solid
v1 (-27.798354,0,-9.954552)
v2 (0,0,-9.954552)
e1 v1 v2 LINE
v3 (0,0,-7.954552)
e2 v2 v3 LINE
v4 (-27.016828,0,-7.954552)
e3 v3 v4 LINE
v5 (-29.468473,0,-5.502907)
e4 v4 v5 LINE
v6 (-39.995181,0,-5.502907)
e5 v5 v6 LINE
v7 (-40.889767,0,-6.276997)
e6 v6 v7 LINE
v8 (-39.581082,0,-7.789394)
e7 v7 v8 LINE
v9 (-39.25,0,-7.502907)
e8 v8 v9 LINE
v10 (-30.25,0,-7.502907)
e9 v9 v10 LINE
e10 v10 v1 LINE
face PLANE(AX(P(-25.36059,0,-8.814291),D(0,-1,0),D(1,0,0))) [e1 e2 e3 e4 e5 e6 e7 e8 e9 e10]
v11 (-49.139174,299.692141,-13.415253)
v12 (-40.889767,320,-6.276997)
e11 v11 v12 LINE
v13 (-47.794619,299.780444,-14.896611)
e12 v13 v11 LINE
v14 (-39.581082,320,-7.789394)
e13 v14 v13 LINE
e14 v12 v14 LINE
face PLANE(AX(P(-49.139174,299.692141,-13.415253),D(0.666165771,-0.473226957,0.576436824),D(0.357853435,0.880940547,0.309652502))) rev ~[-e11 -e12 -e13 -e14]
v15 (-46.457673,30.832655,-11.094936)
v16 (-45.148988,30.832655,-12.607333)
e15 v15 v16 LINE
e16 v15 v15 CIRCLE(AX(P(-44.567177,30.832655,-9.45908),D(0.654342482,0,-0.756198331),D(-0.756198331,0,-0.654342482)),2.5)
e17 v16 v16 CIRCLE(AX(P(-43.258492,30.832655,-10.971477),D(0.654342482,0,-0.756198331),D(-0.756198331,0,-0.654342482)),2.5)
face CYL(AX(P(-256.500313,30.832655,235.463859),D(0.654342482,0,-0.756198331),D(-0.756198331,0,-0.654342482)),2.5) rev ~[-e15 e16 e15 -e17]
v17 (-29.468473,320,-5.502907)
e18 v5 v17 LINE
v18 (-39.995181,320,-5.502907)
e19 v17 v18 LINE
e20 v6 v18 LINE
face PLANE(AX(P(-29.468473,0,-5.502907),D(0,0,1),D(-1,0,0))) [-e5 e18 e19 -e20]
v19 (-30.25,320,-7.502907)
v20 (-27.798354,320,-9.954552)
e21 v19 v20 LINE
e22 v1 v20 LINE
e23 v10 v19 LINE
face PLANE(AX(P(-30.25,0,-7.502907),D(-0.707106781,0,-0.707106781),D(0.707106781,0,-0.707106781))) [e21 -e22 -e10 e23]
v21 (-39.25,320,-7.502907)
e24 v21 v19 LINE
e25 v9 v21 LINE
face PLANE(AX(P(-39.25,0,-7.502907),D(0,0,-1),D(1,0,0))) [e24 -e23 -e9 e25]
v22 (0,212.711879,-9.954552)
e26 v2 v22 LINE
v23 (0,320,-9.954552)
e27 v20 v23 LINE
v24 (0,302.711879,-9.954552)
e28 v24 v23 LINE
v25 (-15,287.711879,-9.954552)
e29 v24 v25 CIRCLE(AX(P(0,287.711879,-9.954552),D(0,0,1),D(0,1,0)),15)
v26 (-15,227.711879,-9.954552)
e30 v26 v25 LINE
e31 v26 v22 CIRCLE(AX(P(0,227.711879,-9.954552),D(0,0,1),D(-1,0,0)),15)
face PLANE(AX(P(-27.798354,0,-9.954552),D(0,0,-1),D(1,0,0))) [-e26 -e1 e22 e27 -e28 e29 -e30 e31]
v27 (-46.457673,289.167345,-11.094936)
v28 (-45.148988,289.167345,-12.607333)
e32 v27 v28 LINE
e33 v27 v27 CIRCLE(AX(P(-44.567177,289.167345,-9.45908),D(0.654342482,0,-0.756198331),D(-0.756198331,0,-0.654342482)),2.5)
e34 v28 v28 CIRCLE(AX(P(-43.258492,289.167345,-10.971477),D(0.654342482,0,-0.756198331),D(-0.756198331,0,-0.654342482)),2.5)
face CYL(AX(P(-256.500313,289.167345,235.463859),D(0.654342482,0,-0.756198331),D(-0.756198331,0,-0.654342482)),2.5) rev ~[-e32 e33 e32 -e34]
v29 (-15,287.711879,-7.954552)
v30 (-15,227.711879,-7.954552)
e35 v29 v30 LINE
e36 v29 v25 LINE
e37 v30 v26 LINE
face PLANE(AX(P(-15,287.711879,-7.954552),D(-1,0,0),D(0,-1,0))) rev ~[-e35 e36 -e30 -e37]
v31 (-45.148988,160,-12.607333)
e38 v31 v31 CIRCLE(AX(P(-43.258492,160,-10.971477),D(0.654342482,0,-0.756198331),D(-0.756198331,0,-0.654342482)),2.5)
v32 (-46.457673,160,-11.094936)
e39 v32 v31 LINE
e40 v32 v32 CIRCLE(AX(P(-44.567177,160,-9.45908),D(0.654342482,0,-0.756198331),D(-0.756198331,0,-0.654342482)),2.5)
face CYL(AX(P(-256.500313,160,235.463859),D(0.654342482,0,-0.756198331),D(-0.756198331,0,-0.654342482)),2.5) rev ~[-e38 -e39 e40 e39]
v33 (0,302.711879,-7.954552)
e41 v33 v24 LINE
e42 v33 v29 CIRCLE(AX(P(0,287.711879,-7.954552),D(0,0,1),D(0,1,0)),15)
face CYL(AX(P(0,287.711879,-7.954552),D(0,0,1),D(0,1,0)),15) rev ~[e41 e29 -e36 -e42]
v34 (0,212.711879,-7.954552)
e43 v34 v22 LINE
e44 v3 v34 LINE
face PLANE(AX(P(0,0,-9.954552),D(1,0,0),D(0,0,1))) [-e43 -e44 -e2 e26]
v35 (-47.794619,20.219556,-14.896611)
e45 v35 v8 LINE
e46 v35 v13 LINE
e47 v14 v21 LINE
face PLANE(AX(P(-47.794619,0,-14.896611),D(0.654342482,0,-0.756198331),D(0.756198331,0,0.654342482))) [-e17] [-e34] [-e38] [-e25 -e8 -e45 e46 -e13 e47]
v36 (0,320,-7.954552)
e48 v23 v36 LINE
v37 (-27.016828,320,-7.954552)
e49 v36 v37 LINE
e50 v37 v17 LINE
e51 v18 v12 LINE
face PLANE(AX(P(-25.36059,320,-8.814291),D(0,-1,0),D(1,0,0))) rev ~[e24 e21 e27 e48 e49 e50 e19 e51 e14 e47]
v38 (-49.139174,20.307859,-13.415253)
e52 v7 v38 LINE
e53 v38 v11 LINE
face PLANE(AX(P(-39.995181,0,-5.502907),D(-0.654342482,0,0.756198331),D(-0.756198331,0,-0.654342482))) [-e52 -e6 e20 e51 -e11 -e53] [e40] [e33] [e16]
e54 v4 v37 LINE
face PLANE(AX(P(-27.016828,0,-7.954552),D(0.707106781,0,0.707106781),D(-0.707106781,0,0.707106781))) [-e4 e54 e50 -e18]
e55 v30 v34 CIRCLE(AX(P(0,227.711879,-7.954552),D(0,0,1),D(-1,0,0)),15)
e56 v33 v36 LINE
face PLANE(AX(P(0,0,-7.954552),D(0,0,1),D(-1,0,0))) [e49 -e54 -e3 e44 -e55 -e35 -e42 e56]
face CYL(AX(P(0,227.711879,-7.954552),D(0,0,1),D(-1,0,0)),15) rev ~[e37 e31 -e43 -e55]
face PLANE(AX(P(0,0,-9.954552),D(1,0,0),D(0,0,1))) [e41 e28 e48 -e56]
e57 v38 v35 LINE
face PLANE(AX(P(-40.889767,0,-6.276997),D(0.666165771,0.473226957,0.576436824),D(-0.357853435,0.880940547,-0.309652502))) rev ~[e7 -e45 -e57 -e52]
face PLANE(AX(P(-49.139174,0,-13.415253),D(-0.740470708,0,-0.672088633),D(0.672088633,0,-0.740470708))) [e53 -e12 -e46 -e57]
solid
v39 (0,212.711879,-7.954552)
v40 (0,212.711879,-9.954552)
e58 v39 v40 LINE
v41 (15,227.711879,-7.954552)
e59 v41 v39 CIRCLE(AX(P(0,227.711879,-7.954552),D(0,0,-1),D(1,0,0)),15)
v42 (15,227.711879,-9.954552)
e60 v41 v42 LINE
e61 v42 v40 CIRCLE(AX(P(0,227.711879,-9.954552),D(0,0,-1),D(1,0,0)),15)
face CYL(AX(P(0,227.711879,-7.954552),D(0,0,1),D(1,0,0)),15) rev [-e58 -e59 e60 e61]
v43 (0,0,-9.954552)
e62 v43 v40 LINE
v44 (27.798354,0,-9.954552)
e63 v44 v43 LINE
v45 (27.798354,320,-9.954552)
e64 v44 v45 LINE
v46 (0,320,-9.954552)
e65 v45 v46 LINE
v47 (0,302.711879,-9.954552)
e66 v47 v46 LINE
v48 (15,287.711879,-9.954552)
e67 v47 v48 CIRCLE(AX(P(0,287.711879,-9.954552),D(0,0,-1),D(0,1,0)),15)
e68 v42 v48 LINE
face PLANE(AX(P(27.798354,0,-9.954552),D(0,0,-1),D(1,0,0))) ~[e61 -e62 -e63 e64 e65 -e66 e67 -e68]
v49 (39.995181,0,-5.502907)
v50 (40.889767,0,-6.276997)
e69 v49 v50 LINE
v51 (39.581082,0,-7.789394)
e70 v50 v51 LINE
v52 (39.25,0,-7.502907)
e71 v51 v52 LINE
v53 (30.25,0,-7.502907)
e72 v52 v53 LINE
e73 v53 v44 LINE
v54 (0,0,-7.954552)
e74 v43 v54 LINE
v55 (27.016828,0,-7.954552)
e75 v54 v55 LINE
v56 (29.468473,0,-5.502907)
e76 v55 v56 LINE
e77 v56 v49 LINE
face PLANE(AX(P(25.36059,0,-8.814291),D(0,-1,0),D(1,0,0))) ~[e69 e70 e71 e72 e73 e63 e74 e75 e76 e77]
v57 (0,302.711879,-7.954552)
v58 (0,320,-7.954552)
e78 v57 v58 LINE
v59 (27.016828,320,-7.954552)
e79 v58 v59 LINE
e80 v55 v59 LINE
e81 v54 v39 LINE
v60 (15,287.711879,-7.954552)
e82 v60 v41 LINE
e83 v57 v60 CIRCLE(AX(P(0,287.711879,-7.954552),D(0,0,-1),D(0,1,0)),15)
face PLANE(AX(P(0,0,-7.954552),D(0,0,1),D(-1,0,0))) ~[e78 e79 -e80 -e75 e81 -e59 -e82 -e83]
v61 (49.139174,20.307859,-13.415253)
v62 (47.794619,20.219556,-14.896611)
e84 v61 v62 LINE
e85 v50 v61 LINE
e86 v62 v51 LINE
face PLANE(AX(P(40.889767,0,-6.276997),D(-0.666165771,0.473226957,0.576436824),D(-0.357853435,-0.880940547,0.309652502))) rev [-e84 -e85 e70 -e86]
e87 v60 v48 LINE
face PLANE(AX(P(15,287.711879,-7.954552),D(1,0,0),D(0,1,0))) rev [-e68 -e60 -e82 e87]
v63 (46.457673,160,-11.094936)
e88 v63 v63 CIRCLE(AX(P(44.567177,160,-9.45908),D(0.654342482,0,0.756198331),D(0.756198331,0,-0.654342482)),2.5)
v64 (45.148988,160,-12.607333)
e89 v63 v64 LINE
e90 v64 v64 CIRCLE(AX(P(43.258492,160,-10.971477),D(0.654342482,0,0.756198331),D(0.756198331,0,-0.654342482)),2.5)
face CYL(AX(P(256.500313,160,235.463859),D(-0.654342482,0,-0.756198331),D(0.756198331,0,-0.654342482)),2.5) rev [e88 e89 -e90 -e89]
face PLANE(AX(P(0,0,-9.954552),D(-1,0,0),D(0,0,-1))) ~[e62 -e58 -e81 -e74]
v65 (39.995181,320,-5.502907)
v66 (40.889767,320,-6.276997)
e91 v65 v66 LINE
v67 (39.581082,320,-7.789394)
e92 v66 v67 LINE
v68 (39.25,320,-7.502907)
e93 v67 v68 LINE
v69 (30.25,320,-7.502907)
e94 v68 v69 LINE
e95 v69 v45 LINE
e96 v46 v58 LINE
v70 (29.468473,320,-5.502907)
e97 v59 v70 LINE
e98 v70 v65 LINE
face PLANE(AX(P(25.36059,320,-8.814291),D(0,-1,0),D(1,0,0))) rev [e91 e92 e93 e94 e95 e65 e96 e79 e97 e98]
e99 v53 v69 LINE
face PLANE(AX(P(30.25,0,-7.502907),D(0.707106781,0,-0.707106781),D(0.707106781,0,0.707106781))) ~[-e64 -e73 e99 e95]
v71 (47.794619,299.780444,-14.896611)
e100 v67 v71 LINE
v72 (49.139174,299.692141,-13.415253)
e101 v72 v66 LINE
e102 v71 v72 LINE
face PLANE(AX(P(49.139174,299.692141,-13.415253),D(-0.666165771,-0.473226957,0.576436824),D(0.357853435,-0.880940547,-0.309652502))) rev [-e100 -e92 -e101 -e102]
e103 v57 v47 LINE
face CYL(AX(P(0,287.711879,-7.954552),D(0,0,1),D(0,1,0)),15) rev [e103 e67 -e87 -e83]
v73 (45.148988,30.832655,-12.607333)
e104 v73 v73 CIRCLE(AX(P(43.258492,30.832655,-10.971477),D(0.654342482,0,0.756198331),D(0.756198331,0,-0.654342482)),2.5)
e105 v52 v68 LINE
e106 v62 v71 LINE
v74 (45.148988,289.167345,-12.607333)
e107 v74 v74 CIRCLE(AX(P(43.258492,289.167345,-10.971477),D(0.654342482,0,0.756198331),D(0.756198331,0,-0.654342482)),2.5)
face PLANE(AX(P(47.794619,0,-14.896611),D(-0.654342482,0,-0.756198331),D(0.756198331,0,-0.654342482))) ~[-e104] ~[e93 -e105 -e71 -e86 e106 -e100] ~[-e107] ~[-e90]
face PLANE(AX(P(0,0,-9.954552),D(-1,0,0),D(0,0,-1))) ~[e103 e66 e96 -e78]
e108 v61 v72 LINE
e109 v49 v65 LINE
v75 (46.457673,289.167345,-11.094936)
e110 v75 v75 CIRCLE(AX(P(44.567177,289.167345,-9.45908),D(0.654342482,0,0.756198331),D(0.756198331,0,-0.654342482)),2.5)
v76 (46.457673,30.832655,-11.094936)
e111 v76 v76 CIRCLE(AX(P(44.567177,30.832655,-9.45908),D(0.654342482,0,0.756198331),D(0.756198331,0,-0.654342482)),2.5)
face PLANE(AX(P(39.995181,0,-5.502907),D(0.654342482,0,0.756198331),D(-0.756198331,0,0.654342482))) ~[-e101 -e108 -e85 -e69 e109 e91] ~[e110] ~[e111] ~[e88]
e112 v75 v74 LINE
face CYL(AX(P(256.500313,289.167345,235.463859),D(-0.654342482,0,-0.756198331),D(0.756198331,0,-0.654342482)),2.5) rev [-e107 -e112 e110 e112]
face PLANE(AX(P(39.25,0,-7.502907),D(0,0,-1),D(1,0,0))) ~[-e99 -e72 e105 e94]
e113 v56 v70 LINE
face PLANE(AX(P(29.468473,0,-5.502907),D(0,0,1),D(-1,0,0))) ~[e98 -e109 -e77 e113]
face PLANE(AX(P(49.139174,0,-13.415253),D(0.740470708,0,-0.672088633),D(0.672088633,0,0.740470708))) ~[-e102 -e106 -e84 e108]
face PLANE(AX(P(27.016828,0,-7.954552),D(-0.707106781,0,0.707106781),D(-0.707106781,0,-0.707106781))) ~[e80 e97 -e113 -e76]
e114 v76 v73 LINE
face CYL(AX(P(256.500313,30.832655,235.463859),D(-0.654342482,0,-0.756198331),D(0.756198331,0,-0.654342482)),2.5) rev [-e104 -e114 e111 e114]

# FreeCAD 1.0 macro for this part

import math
import FreeCAD as App
import Part
import Sketcher
from FreeCAD import Vector
Q = App.Units.Quantity


def add_polygon(sketch, points):
    """Adds a closed chain of lines whose ends are joined by coincident constraints."""
    first, n = sketch.GeometryCount, len(points)
    for a, b in zip(points, points[1:] + points[:1]):
        sketch.addGeometry(Part.LineSegment(App.Vector(*a, 0), App.Vector(*b, 0)), False)
    for i in range(n):
        sketch.addConstraint(Sketcher.Constraint("Coincident", first + i, 2, first + (i + 1) % n, 1))

doc = App.newDocument("Part")
body = doc.addObject("PartDesign::Body", "Body")

# Sketch on XZ plane
sketch1 = doc.addObject("Sketcher::SketchObject", "Sketch")
body.addObject(sketch1)
sketch1.AttachmentSupport = (doc.XZ_Plane, [""])
sketch1.MapMode = "FlatFace"
add_polygon(sketch1, [(-29.5, -5.5), (-40, -5.5), (-49.1, -13.4), (-47.8, -14.9), (-39.2, -7.5), (-30.2, -7.5), (-27.8, -10), (0, -10), (0, -8), (-27, -8)])  # lines 0-9
sketch1.addConstraint(Sketcher.Constraint("Horizontal", 0))
sketch1.addConstraint(Sketcher.Constraint("Horizontal", 4))
sketch1.addConstraint(Sketcher.Constraint("Horizontal", 6))
sketch1.addConstraint(Sketcher.Constraint("Vertical", 7))
sketch1.addConstraint(Sketcher.Constraint("Horizontal", 8))
sketch1.addConstraint(Sketcher.Constraint("PointOnObject", 6, 2, -2))
sketch1.addConstraint(Sketcher.Constraint("Parallel", 1, 3))
sketch1.addConstraint(Sketcher.Constraint("Parallel", 5, 9))
sketch1.addConstraint(Sketcher.Constraint("Equal", 5, 9))
sketch1.addConstraint(Sketcher.Constraint("DistanceX", 4, 1, 4, 2, 9.0))
sketch1.addConstraint(Sketcher.Constraint("DistanceY", 7, 1, 7, 2, 2.0))
sketch1.addConstraint(Sketcher.Constraint("Angle", 5, Q("-45 deg")))
sketch1.addConstraint(Sketcher.Constraint("DistanceX", 3, 2, -1, 1, 39.25))
sketch1.addConstraint(Sketcher.Constraint("DistanceY", 1, 2, 5, 2, 3.460701))
sketch1.addConstraint(Sketcher.Constraint("Distance", 3, 11.299441))
sketch1.addConstraint(Sketcher.Constraint("Distance", 5, 3.467151))
sketch1.addConstraint(Sketcher.Constraint("DistanceX", 0, 2, 0, 1, 10.526707))
sketch1.addConstraint(Sketcher.Constraint("DistanceX", 8, 2, 8, 1, 27.016828))
sketch1.addConstraint(Sketcher.Constraint("DistanceX", 2, 2, -1, 1, 47.794619))
sketch1.addConstraint(Sketcher.Constraint("DistanceY", 2, 2, -1, 1, 14.896611))
pad1 = doc.addObject("PartDesign::Pad", "Pad")
body.addObject(pad1)
pad1.Profile = sketch1
pad1.Length = 320
pad1.Reversed = True

# Sketch on an angled plane
sketch2 = doc.addObject("Sketcher::SketchObject", "Sketch001")
body.addObject(sketch2)
sketch2.Placement = App.Placement(Vector(-14.401592, 0, 16.643363), App.Rotation(Vector(0.756198331, 0, 0.654342482), Vector(0, 1, 0), Vector(-0.654342482, 0, 0.756198331), "ZXY"))
sketch2.addGeometry(Part.Circle(Vector(-39.9, 289.2, 0), Vector(0, 0, 1), 2.5), False)
sketch2.addGeometry(Part.Circle(Vector(-39.9, 160, 0), Vector(0, 0, 1), 2.5), False)
sketch2.addGeometry(Part.Circle(Vector(-39.9, 30.8, 0), Vector(0, 0, 1), 2.5), False)
sketch2.addConstraint(Sketcher.Constraint("Equal", 0, 1))
sketch2.addConstraint(Sketcher.Constraint("Equal", 1, 2))
sketch2.addConstraint(Sketcher.Constraint("Vertical", 0, 3, 1, 3))
sketch2.addConstraint(Sketcher.Constraint("Vertical", 1, 3, 2, 3))
sketch2.addConstraint(Sketcher.Constraint("Diameter", 0, 5.0))
sketch2.addConstraint(Sketcher.Constraint("DistanceY", -1, 1, 1, 3, 160.0))
sketch2.addConstraint(Sketcher.Constraint("DistanceY", 2, 3, 0, 3, 258.334689))
sketch2.addConstraint(Sketcher.Constraint("DistanceX", 0, 3, -1, 1, 39.891103))
sketch2.addConstraint(Sketcher.Constraint("DistanceY", -1, 1, 0, 3, 289.167344))
doc.recompute()
hole = doc.addObject("PartDesign::Hole", "Hole")
body.addObject(hole)
hole.Profile = sketch2
hole.ThreadType = "None"
hole.Diameter = 5
hole.DepthType = "ThroughAll"

# Sketch on XY plane
sketch3 = doc.addObject("Sketcher::SketchObject", "Sketch002")
body.addObject(sketch3)
sketch3.AttachmentSupport = (doc.XY_Plane, [""])
sketch3.MapMode = "FlatFace"
sketch3.AttachmentOffset = App.Placement(Vector(0, 0, -7.954552), App.Rotation())
sketch3.addGeometry(Part.ArcOfCircle(Part.Circle(Vector(0, 288, 0), Vector(0, 0, 1), 15), math.radians(90), math.radians(180)), False)
sketch3.addGeometry(Part.LineSegment(Vector(-15, 288, 0), Vector(-15, 228, 0)), False)
sketch3.addGeometry(Part.ArcOfCircle(Part.Circle(Vector(0, 228, 0), Vector(0, 0, 1), 15), math.radians(180), math.radians(270)), False)
sketch3.addGeometry(Part.LineSegment(Vector(0, 213, 0), Vector(0, 303, 0)), False)
sketch3.addConstraint(Sketcher.Constraint("Tangent", 0, 2, 1, 1))
sketch3.addConstraint(Sketcher.Constraint("Tangent", 1, 2, 2, 1))
sketch3.addConstraint(Sketcher.Constraint("Coincident", 2, 2, 3, 1))
sketch3.addConstraint(Sketcher.Constraint("Coincident", 3, 2, 0, 1))
sketch3.addConstraint(Sketcher.Constraint("Vertical", 1))
sketch3.addConstraint(Sketcher.Constraint("Vertical", 3))
sketch3.addConstraint(Sketcher.Constraint("Equal", 0, 2))
sketch3.addConstraint(Sketcher.Constraint("PointOnObject", 0, 3, -2))
sketch3.addConstraint(Sketcher.Constraint("PointOnObject", 2, 2, -2))
sketch3.addConstraint(Sketcher.Constraint("Radius", 0, 15.0))
sketch3.addConstraint(Sketcher.Constraint("DistanceY", 1, 2, 1, 1, 60.0))
sketch3.addConstraint(Sketcher.Constraint("DistanceY", -1, 1, 0, 3, 287.711879))
pocket1 = doc.addObject("PartDesign::Pocket", "Pocket")
body.addObject(pocket1)
pocket1.Profile = sketch3
pocket1.Type = "ThroughAll"

# Sketch on an angled plane
sketch4 = doc.addObject("Sketcher::SketchObject", "Sketch003")
body.addObject(sketch4)
sketch4.Placement = App.Placement(Vector(-14.401592, 0, 16.643363), App.Rotation(Vector(0.756198331, 0, 0.654342482), Vector(0, 1, 0), Vector(-0.654342482, 0, 0.756198331), "ZXY"))
add_polygon(sketch4, [(-46, 300), (-35, 320), (-46, 320)])  # lines 0-2
add_polygon(sketch4, [(-35, 0), (-46, 20), (-46, 0)])  # lines 3-5
sketch4.addConstraint(Sketcher.Constraint("Horizontal", 1))
sketch4.addConstraint(Sketcher.Constraint("Vertical", 2))
sketch4.addConstraint(Sketcher.Constraint("Vertical", 4))
sketch4.addConstraint(Sketcher.Constraint("Horizontal", 5))
sketch4.addConstraint(Sketcher.Constraint("PointOnObject", 4, 2, -1))
sketch4.addConstraint(Sketcher.Constraint("Vertical", 2, 2, 3, 2))
sketch4.addConstraint(Sketcher.Constraint("Vertical", 0, 2, 5, 2))
sketch4.addConstraint(Sketcher.Constraint("Equal", 2, 4))
sketch4.addConstraint(Sketcher.Constraint("DistanceY", -1, 1, 0, 2, 320.0))
sketch4.addConstraint(Sketcher.Constraint("DistanceX", 1, 2, 1, 1, 10.909052))
sketch4.addConstraint(Sketcher.Constraint("DistanceY", 2, 2, 2, 1, 20.307859))
sketch4.addConstraint(Sketcher.Constraint("DistanceX", 0, 2, -1, 1, 35.028079))
pocket2 = doc.addObject("PartDesign::Pocket", "Pocket001")
body.addObject(pocket2)
pocket2.Profile = sketch4
pocket2.Type = "ThroughAll"
body2 = doc.addObject("PartDesign::Body", "Body001")
doc.recompute()

mirroring = doc.addObject("Part::Mirroring", "Mirroring")
mirroring.Source = body
mirroring.Base = Vector(0, 260, 0)
mirroring.Normal = Vector(-1, 0, 0)
body2.BaseFeature = mirroring
doc.recompute()
mirroring.Visibility = False

doc.recompute()
